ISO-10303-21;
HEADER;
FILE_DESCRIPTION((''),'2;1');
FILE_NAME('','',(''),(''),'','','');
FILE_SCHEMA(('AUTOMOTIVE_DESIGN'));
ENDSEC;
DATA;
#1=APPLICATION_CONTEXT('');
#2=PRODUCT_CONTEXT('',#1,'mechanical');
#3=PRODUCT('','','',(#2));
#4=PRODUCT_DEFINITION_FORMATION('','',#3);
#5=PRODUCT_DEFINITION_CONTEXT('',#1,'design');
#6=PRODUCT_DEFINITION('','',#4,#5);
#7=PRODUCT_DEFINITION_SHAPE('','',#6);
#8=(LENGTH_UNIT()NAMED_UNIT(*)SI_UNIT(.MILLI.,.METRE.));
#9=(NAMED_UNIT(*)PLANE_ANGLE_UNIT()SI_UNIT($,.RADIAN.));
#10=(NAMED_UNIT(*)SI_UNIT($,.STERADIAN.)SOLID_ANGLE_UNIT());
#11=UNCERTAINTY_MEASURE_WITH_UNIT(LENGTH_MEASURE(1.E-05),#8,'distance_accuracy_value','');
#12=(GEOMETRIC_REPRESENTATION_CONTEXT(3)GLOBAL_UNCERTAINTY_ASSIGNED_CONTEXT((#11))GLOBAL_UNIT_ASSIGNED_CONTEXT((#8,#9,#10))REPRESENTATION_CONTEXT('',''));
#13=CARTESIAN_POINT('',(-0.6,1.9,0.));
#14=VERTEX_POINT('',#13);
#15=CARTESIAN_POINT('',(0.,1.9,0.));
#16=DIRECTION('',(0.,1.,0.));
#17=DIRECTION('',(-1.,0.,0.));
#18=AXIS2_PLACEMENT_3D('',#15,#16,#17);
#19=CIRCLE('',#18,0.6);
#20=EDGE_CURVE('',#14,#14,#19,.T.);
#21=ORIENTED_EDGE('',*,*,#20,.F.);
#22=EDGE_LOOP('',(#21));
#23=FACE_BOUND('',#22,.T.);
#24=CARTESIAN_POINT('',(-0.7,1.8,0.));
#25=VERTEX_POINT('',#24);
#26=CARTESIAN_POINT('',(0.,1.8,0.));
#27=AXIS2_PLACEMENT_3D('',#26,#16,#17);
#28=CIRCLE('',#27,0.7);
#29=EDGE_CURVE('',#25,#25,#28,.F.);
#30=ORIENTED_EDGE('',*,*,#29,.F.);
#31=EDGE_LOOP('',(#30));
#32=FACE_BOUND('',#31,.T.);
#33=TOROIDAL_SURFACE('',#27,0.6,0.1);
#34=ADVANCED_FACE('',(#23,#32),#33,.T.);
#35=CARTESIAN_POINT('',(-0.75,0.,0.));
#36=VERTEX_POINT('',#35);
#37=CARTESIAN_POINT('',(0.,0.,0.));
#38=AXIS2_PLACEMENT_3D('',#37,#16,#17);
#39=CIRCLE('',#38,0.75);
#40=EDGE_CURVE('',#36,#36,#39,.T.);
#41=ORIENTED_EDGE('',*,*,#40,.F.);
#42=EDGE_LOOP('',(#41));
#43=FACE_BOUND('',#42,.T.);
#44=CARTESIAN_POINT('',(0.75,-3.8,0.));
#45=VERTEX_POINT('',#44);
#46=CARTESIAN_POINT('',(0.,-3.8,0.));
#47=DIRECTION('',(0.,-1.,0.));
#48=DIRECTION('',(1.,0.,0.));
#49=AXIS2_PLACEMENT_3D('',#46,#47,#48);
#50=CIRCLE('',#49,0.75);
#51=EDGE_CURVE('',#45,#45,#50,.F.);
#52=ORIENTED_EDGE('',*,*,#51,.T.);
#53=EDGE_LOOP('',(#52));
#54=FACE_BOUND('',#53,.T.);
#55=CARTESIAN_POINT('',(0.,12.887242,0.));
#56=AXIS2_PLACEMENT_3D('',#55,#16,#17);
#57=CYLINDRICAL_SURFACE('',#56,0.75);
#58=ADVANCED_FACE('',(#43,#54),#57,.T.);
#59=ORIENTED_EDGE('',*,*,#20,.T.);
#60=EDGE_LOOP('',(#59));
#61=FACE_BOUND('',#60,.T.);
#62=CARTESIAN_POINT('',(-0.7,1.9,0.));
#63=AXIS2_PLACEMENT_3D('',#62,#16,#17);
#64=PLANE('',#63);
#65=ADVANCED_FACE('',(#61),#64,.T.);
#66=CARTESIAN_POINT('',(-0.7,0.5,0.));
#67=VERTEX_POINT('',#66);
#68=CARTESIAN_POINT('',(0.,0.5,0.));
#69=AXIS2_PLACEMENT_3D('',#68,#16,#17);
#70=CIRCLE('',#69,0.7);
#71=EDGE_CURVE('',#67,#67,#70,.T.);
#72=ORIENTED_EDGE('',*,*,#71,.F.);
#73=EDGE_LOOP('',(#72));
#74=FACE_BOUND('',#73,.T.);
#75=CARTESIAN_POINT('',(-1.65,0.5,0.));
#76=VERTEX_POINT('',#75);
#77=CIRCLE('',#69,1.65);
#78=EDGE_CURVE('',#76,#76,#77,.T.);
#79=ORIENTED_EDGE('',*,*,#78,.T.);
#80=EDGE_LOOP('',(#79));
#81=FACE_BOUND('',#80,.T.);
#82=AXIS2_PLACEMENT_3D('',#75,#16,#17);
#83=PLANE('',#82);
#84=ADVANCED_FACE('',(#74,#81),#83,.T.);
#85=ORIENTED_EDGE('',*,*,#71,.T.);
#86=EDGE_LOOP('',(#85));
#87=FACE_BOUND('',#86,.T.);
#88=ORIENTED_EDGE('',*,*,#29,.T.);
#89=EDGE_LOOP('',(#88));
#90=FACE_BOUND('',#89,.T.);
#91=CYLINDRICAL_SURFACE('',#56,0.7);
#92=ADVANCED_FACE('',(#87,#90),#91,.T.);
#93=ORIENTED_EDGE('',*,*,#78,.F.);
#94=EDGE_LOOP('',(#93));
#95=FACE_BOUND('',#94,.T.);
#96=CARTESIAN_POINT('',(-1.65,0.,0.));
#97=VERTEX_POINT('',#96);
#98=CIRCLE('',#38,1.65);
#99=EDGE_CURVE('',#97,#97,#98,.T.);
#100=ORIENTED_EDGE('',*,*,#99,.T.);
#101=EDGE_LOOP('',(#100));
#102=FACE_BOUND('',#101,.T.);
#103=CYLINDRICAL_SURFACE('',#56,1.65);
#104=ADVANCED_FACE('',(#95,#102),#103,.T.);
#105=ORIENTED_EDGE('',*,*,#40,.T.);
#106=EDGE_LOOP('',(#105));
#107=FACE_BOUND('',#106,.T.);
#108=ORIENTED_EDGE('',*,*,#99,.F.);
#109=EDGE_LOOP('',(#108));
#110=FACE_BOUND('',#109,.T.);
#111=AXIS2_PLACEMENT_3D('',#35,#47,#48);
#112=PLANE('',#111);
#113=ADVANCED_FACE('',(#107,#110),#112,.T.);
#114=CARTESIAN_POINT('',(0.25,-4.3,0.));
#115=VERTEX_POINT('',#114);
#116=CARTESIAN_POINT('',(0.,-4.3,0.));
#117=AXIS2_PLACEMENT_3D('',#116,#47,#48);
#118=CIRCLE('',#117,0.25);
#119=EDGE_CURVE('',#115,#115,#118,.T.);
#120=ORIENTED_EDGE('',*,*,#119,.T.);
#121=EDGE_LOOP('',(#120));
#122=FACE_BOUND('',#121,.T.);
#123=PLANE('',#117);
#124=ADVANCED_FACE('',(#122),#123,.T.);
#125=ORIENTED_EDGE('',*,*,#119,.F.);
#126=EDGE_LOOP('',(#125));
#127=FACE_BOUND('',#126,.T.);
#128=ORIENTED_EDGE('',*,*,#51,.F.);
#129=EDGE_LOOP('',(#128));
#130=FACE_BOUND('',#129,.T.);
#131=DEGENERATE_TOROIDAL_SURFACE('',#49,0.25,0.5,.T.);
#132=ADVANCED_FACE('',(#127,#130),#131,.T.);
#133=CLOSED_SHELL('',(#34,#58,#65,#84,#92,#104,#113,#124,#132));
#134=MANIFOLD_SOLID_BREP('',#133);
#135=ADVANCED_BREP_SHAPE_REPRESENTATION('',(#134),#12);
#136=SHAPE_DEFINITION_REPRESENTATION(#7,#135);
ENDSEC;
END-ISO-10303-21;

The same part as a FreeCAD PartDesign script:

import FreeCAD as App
import Part
import Sketcher

V = App.Vector
Q = App.Units.Quantity


def edges_at(feature, points):
    """Names of the edges that pass closest to the given points."""
    edges = feature.Shape.Edges
    near = lambda p: min(range(len(edges)), key=lambda i: edges[i].distToShape(Part.Vertex(*p))[0])
    return sorted({f"Edge{near(p) + 1}" for p in points})

doc = App.newDocument("Part")
body = doc.addObject("PartDesign::Body", "Body")

# Sketch on XY plane
sketch1 = body.newObject("Sketcher::SketchObject", "Sketch")
sketch1.AttachmentSupport = (doc.getObject("XY_Plane"), [""])
sketch1.MapMode = "FlatFace"
sketch1.addGeometry([
    Part.LineSegment(V(-0.8, -4.3, 0), V(0, -4.3, 0)),  # 0
    Part.LineSegment(V(0, -4.3, 0), V(0, 1.9, 0)),  # 1
    Part.LineSegment(V(0, 1.9, 0), V(-0.7, 1.9, 0)),  # 2
    Part.LineSegment(V(-0.7, 1.9, 0), V(-0.7, 0.5, 0)),  # 3
    Part.LineSegment(V(-0.7, 0.5, 0), V(-1.6, 0.5, 0)),  # 4
    Part.LineSegment(V(-1.6, 0.5, 0), V(-1.6, 0, 0)),  # 5
    Part.LineSegment(V(-1.6, 0, 0), V(-0.8, 0, 0)),  # 6
    Part.LineSegment(V(-0.8, 0, 0), V(-0.8, -4.3, 0)),  # 7
], False)
sketch1.addConstraint([
    Sketcher.Constraint("Coincident", 0, 2, 1, 1),
    Sketcher.Constraint("Coincident", 1, 2, 2, 1),
    Sketcher.Constraint("Coincident", 2, 2, 3, 1),
    Sketcher.Constraint("Coincident", 3, 2, 4, 1),
    Sketcher.Constraint("Coincident", 4, 2, 5, 1),
    Sketcher.Constraint("Coincident", 5, 2, 6, 1),
    Sketcher.Constraint("Coincident", 6, 2, 7, 1),
    Sketcher.Constraint("Coincident", 7, 2, 0, 1),
    Sketcher.Constraint("Horizontal", 0),
    Sketcher.Constraint("Vertical", 1),
    Sketcher.Constraint("Horizontal", 2),
    Sketcher.Constraint("Vertical", 3),
    Sketcher.Constraint("Horizontal", 4),
    Sketcher.Constraint("Vertical", 5),
    Sketcher.Constraint("Horizontal", 6),
    Sketcher.Constraint("Vertical", 7),
    Sketcher.Constraint("PointOnObject", 0, 2, -2),
    Sketcher.Constraint("PointOnObject", 5, 2, -1),
    Sketcher.Constraint("DistanceX", 2, 2, 2, 1, Q("0.7 mm")),
    Sketcher.Constraint("DistanceX", 6, 1, 6, 2, Q("0.9 mm")),
    Sketcher.Constraint("DistanceY", 1, 1, 1, 2, Q("6.2 mm")),
    Sketcher.Constraint("DistanceY", 3, 2, 3, 1, Q("1.4 mm")),
    Sketcher.Constraint("DistanceY", 5, 2, 5, 1, Q("0.5 mm")),
    Sketcher.Constraint("DistanceX", 0, 1, 0, 2, Q("0.75 mm")),
])
revolution = body.newObject("PartDesign::Revolution", "Revolution")
revolution.Profile = sketch1
revolution.ReferenceAxis = (sketch1, ["V_Axis"])
revolution.Angle = 360
doc.recompute()

fillet = body.newObject("PartDesign::Fillet", "Fillet")
fillet.Base = (revolution, edges_at(revolution, [(0.7, 1.9, 0)]))
fillet.Radius = 0.1
doc.recompute()

fillet2 = body.newObject("PartDesign::Fillet", "Fillet001")
fillet2.Base = (fillet, edges_at(fillet, [(0.75, -4.3, 0)]))
fillet2.Radius = 0.5

doc.recompute()
